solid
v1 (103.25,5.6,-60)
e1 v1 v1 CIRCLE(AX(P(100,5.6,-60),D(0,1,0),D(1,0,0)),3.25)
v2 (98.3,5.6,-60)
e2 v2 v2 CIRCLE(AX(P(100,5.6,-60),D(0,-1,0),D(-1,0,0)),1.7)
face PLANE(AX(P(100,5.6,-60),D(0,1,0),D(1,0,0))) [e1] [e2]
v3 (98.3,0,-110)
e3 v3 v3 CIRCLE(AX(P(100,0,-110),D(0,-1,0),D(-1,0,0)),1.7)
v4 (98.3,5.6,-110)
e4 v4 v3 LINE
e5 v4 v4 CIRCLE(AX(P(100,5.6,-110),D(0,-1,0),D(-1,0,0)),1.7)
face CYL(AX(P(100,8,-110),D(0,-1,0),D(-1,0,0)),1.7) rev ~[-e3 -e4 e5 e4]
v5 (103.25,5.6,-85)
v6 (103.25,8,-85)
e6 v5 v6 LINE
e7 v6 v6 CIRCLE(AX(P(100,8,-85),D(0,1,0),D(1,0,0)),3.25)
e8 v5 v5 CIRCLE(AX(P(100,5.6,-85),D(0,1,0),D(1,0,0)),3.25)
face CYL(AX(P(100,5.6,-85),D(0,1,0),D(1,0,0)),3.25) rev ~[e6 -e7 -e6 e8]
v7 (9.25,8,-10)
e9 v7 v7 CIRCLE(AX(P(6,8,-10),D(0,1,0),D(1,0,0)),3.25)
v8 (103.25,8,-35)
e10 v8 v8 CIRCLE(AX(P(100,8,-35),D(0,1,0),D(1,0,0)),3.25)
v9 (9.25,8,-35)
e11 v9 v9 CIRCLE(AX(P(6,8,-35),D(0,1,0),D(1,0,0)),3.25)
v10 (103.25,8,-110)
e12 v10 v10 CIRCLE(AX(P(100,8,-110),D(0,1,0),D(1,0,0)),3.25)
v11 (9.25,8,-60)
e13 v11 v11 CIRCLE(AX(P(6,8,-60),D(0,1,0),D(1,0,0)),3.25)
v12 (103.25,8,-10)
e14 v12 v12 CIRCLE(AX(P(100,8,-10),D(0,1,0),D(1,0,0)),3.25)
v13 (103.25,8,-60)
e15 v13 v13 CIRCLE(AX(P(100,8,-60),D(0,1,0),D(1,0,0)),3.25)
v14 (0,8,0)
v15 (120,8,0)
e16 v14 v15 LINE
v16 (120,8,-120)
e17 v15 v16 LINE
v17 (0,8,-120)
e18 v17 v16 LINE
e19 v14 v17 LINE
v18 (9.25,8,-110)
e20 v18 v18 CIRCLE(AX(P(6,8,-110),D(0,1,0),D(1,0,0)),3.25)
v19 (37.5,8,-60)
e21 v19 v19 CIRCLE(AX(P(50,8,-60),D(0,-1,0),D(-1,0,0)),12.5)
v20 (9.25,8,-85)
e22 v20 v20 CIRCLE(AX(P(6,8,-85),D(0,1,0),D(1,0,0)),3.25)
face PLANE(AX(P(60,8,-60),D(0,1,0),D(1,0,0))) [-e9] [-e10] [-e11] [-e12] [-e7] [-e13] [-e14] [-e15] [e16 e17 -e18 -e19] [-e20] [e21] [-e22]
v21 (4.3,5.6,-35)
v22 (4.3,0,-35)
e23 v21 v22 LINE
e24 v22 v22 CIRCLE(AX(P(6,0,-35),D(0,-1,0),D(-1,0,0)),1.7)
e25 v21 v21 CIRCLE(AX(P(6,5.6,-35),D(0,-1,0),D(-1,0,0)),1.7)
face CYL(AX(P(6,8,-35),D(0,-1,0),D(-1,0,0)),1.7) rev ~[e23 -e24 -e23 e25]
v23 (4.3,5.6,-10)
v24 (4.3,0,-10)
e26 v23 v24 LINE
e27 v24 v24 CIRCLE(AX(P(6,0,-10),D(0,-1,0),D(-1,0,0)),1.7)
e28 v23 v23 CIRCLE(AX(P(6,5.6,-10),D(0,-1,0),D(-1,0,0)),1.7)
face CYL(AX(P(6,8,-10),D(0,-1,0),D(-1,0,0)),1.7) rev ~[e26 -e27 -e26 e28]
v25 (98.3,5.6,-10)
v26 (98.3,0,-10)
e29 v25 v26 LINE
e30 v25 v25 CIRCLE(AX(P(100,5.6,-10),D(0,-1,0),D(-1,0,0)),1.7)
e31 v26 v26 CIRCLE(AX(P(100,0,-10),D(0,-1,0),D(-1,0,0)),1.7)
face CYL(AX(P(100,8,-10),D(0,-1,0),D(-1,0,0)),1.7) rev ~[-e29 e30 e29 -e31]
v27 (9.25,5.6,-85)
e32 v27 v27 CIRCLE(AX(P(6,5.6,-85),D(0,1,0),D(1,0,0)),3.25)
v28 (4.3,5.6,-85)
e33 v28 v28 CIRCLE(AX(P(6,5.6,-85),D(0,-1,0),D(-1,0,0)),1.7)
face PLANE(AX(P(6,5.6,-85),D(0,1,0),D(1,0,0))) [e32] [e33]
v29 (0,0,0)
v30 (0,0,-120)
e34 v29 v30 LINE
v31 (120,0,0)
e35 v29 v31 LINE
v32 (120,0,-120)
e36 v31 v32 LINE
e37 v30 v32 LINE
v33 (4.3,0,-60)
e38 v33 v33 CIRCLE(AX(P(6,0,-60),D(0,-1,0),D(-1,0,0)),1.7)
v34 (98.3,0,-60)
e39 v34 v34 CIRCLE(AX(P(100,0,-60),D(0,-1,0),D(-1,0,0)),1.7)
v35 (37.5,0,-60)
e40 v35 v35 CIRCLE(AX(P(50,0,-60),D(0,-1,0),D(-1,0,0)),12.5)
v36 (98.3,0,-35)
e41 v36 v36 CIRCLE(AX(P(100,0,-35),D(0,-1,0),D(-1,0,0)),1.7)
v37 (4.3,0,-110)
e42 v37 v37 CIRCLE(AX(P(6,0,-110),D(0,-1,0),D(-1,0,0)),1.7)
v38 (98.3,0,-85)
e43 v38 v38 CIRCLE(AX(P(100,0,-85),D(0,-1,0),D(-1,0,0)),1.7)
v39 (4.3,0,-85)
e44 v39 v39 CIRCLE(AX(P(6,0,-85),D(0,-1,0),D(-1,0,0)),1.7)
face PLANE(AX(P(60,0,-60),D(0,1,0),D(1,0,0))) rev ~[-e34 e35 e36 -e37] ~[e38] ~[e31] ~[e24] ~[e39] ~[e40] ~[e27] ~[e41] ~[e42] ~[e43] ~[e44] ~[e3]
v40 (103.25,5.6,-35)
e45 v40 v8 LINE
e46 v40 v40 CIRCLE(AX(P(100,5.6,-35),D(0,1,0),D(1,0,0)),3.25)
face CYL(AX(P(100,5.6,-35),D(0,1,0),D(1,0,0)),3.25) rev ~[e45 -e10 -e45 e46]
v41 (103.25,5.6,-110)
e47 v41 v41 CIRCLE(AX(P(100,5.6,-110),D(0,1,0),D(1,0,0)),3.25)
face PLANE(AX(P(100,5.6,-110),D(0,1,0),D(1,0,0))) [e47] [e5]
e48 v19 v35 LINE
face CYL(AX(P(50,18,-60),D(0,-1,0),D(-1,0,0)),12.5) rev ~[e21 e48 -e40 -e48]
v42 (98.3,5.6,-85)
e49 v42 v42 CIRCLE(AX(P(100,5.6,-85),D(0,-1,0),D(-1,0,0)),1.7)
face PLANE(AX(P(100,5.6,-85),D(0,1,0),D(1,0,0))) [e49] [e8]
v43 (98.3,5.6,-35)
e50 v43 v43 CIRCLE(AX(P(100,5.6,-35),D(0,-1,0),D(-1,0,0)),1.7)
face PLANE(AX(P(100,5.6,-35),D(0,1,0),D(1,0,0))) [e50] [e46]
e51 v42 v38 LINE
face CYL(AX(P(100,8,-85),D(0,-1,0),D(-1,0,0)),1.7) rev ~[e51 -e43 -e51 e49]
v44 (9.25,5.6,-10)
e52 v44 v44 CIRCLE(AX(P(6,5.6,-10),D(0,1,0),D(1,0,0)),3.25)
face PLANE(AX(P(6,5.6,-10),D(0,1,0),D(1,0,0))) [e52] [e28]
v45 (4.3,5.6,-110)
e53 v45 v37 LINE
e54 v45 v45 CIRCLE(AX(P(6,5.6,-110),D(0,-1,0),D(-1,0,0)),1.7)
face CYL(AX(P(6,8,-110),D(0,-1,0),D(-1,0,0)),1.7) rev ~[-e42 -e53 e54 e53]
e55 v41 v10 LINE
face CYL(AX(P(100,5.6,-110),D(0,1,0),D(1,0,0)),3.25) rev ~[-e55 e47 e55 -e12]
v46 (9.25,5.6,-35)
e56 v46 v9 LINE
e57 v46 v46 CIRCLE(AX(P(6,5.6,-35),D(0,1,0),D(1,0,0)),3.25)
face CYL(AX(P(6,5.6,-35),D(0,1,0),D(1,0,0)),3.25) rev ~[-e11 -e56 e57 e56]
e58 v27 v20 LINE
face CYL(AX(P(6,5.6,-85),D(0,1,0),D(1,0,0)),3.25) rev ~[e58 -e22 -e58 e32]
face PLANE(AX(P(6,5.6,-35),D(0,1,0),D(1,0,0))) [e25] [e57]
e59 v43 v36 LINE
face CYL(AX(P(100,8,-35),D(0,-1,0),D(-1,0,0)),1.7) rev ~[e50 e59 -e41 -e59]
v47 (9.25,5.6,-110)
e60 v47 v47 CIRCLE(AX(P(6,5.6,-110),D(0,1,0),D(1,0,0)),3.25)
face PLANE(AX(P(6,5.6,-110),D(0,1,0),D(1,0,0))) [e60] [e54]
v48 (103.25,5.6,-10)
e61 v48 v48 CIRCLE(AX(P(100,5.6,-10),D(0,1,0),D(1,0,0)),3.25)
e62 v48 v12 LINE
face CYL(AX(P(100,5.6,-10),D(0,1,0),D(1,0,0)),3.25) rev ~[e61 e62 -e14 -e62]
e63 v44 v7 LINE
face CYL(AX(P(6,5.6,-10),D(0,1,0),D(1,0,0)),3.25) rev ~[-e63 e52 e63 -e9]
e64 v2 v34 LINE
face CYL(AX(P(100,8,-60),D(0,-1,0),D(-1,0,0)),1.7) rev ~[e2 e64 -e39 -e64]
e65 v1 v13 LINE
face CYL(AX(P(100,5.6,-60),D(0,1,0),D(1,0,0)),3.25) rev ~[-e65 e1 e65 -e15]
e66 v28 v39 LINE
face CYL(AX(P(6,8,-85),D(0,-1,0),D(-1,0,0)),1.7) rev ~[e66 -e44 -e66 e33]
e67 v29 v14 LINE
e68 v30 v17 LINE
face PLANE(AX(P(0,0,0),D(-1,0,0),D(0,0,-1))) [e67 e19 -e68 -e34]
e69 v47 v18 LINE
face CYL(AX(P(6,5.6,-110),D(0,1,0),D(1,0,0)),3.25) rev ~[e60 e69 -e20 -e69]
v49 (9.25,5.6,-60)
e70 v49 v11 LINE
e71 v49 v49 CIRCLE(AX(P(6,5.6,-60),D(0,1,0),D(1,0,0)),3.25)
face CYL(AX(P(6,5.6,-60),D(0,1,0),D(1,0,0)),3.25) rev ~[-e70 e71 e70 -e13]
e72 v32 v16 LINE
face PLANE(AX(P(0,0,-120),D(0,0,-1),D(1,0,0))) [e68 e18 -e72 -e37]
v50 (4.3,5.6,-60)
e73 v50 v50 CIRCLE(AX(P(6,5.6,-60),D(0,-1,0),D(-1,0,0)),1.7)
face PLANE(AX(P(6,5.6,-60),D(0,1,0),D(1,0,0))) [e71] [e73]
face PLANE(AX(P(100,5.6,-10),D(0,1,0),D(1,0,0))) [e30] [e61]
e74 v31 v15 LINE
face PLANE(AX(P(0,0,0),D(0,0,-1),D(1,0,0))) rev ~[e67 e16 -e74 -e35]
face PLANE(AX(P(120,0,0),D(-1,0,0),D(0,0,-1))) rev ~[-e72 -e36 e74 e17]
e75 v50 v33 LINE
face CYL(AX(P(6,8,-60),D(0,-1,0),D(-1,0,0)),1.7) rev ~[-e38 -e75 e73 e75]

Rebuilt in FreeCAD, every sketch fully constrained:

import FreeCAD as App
import Part
import Sketcher
from FreeCAD import Vector

doc = App.newDocument("Part")
params = doc.addObject("Spreadsheet::Sheet", "Params")
for row, (alias, value) in enumerate([
    ("sketch1_width", "120 mm"),
    ("pad1_length", "8 mm"),
    ("sketch2_diameter", "3.4 mm"),
    ("hole_diameter", "3.4 mm"),
    ("hole_cbore_diameter", "6.5 mm"),
    ("hole_cbore_depth", "2.4 mm"),
    ("sketch3_diameter", "25 mm"),
    ("hole2_diameter", "25 mm"),
    ("hole2_depth", "10 mm"),
], start=1):
    params.set(f"A{row}", alias)
    params.set(f"B{row}", "=" + value)
    params.setAlias(f"B{row}", alias)

body = doc.addObject("PartDesign::Body", "Body")

# Sketch on XZ plane
sketch1 = body.newObject("Sketcher::SketchObject", "Sketch")
sketch1.AttachmentSupport = (doc.getObject("XZ_Plane"), [""])
sketch1.MapMode = "FlatFace"
sketch1.addGeometry([
    Part.LineSegment(Vector(0, -120, 0), Vector(0, 0, 0)),
    Part.LineSegment(Vector(0, 0, 0), Vector(120, 0, 0)),
    Part.LineSegment(Vector(120, 0, 0), Vector(120, -120, 0)),
    Part.LineSegment(Vector(120, -120, 0), Vector(0, -120, 0)),
], False)
sketch1.addConstraint([
    Sketcher.Constraint("Coincident", 0, 2, 1, 1),
    Sketcher.Constraint("Coincident", 1, 2, 2, 1),
    Sketcher.Constraint("Coincident", 2, 2, 3, 1),
    Sketcher.Constraint("Coincident", 3, 2, 0, 1),
    Sketcher.Constraint("Vertical", 0),
    Sketcher.Constraint("Horizontal", 1),
    Sketcher.Constraint("Vertical", 2),
    Sketcher.Constraint("Horizontal", 3),
    Sketcher.Constraint("Coincident", 0, 2, -1, 1),
    Sketcher.Constraint("Equal", 3, 0),
    Sketcher.Constraint("DistanceX", 1, 1, 1, 2, 120.0),
])
sketch1.setExpression("Constraints[10]", "Params.sketch1_width")
pad1 = body.newObject("PartDesign::Pad", "Pad")
pad1.Profile = sketch1
pad1.setExpression("Length", "Params.pad1_length")
pad1.Reversed = True

# Sketch on XZ plane
sketch2 = body.newObject("Sketcher::SketchObject", "Sketch001")
sketch2.AttachmentSupport = (doc.getObject("XZ_Plane"), [""])
sketch2.MapMode = "FlatFace"
sketch2.AttachmentOffset = App.Placement(Vector(0, 0, -8), App.Rotation())
sketch2.addGeometry([
    Part.Circle(Vector(100, -110, 0), Vector(0, 0, 1), 1.7),  # 0
    Part.Circle(Vector(6, -110, 0), Vector(0, 0, 1), 1.7),  # 1
    Part.Circle(Vector(6, -85, 0), Vector(0, 0, 1), 1.7),  # 2
    Part.Circle(Vector(6, -60, 0), Vector(0, 0, 1), 1.7),  # 3
    Part.Circle(Vector(6, -35, 0), Vector(0, 0, 1), 1.7),  # 4
    Part.Circle(Vector(6, -10, 0), Vector(0, 0, 1), 1.7),  # 5
    Part.Circle(Vector(100, -60, 0), Vector(0, 0, 1), 1.7),  # 6
    Part.Circle(Vector(100, -35, 0), Vector(0, 0, 1), 1.7),  # 7
    Part.Circle(Vector(100, -10, 0), Vector(0, 0, 1), 1.7),  # 8
    Part.Circle(Vector(100, -85, 0), Vector(0, 0, 1), 1.7),  # 9
], False)
sketch2.addConstraint([
    Sketcher.Constraint("Equal", 0, 1),
    Sketcher.Constraint("Equal", 1, 2),
    Sketcher.Constraint("Equal", 2, 3),
    Sketcher.Constraint("Equal", 3, 4),
    Sketcher.Constraint("Equal", 4, 5),
    Sketcher.Constraint("Equal", 5, 6),
    Sketcher.Constraint("Equal", 6, 7),
    Sketcher.Constraint("Equal", 7, 8),
    Sketcher.Constraint("Equal", 8, 9),
    Sketcher.Constraint("Horizontal", 0, 3, 1, 3),
    Sketcher.Constraint("Horizontal", 3, 3, 6, 3),
    Sketcher.Constraint("Horizontal", 4, 3, 7, 3),
    Sketcher.Constraint("Horizontal", 5, 3, 8, 3),
    Sketcher.Constraint("Horizontal", 2, 3, 9, 3),
    Sketcher.Constraint("Vertical", 1, 3, 2, 3),
    Sketcher.Constraint("Vertical", 2, 3, 3, 3),
    Sketcher.Constraint("Vertical", 3, 3, 4, 3),
    Sketcher.Constraint("Vertical", 4, 3, 5, 3),
    Sketcher.Constraint("Vertical", 0, 3, 6, 3),
    Sketcher.Constraint("Vertical", 6, 3, 7, 3),
    Sketcher.Constraint("Vertical", 7, 3, 8, 3),
    Sketcher.Constraint("Vertical", 8, 3, 9, 3),
    Sketcher.Constraint("Diameter", 0, 3.4),
    Sketcher.Constraint("DistanceX", -1, 1, 0, 3, 100.0),
    Sketcher.Constraint("DistanceY", 0, 3, -1, 1, 110.0),
    Sketcher.Constraint("DistanceX", -1, 1, 1, 3, 6.0),
    Sketcher.Constraint("DistanceY", 2, 3, -1, 1, 85.0),
    Sketcher.Constraint("DistanceY", 3, 3, -1, 1, 60.0),
    Sketcher.Constraint("DistanceY", 4, 3, -1, 1, 35.0),
    Sketcher.Constraint("DistanceY", 5, 3, -1, 1, 10.0),
])
sketch2.setExpression("Constraints[22]", "Params.sketch2_diameter")
doc.recompute()
hole = body.newObject("PartDesign::Hole", "Hole")
hole.Profile = sketch2
hole.ThreadType = "None"
hole.setExpression("Diameter", "Params.hole_diameter")
hole.DepthType = "ThroughAll"
hole.HoleCutType = "Counterbore"
hole.setExpression("HoleCutDiameter", "Params.hole_cbore_diameter")
hole.setExpression("HoleCutDepth", "Params.hole_cbore_depth")
hole.Reversed = True

# Sketch on XZ plane
sketch3 = body.newObject("Sketcher::SketchObject", "Sketch002")
sketch3.AttachmentSupport = (doc.getObject("XZ_Plane"), [""])
sketch3.MapMode = "FlatFace"
sketch3.AttachmentOffset = App.Placement(Vector(0, 0, -8), App.Rotation())
sketch3.addGeometry(Part.Circle(Vector(50, -60, 0), Vector(0, 0, 1), 12), False)
sketch3.addConstraint([
    Sketcher.Constraint("Diameter", 0, 25.0),
    Sketcher.Constraint("DistanceX", -1, 1, 0, 3, 50.0),
    Sketcher.Constraint("DistanceY", 0, 3, -1, 1, 60.0),
])
sketch3.setExpression("Constraints[0]", "Params.sketch3_diameter")
doc.recompute()
hole2 = body.newObject("PartDesign::Hole", "Hole001")
hole2.Profile = sketch3
hole2.ThreadType = "None"
hole2.setExpression("Diameter", "Params.hole2_diameter")
hole2.DepthType = "Dimension"
hole2.setExpression("Depth", "Params.hole2_depth")
hole2.DrillPoint = "Angled"
hole2.DrillPointAngle = 118
hole2.Reversed = True

doc.recompute()
